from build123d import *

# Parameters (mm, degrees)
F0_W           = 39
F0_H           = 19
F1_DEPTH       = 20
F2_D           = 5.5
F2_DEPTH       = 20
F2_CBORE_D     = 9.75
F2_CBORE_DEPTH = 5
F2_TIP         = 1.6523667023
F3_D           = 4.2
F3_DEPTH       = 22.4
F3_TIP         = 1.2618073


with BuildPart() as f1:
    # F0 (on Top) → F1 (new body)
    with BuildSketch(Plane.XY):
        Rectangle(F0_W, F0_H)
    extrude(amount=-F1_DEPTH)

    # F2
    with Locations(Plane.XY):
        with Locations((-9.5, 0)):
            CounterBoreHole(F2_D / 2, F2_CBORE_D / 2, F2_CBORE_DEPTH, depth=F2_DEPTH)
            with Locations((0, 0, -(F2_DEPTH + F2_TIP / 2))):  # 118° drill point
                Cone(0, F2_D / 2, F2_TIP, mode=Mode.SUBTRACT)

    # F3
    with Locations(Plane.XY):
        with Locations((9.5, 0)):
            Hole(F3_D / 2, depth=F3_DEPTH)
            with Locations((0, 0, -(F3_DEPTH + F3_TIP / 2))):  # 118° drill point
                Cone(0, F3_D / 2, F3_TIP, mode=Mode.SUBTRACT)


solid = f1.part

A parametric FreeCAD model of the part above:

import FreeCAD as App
import Part
import Sketcher
from FreeCAD import Vector

doc = App.newDocument("Part")
body = doc.addObject("PartDesign::Body", "Body")

sketch1 = body.newObject("Sketcher::SketchObject", "Sketch")
sketch1.AttachmentSupport = (doc.getObject("XY_Plane"), [""])
sketch1.MapMode = "FlatFace"
sketch1.addGeometry([
    Part.LineSegment(Vector(-19.5, 9.5, 0), Vector(-19.5, -9.5, 0)),
    Part.LineSegment(Vector(-19.5, -9.5, 0), Vector(19.5, -9.5, 0)),
    Part.LineSegment(Vector(19.5, -9.5, 0), Vector(19.5, 9.5, 0)),
    Part.LineSegment(Vector(19.5, 9.5, 0), Vector(-19.5, 9.5, 0)),
], False)
sketch1.addConstraint([
    Sketcher.Constraint("Coincident", 0, 2, 1, 1),
    Sketcher.Constraint("Coincident", 1, 2, 2, 1),
    Sketcher.Constraint("Coincident", 2, 2, 3, 1),
    Sketcher.Constraint("Coincident", 3, 2, 0, 1),
    Sketcher.Constraint("Vertical", 0),
    Sketcher.Constraint("Horizontal", 1),
    Sketcher.Constraint("Vertical", 2),
    Sketcher.Constraint("Horizontal", 3),
    Sketcher.Constraint("Symmetric", 0, 2, 2, 2, -1, 1),
    Sketcher.Constraint("DistanceX", 1, 1, 1, 2, 39.0),
    Sketcher.Constraint("DistanceY", 0, 2, 0, 1, 19.0),
])
pad1 = body.newObject("PartDesign::Pad", "Pad")
pad1.Profile = sketch1
pad1.Length = 20
pad1.Reversed = True

sketch2 = body.newObject("Sketcher::SketchObject", "Sketch001")
sketch2.AttachmentSupport = (doc.getObject("XY_Plane"), [""])
sketch2.MapMode = "FlatFace"
sketch2.addGeometry(Part.Circle(Vector(-9.5, 0, 0), Vector(0, 0, 1), 2.75), False)
sketch2.addConstraint([
    Sketcher.Constraint("PointOnObject", 0, 3, -1),
    Sketcher.Constraint("Diameter", 0, 5.5),
    Sketcher.Constraint("DistanceX", 0, 3, -1, 1, 9.5),
])
doc.recompute()
hole = body.newObject("PartDesign::Hole", "Hole")
hole.Profile = sketch2
hole.ThreadType = "None"
hole.Diameter = 5.5
hole.DepthType = "Dimension"
hole.Depth = 20
hole.DrillPoint = "Angled"
hole.DrillPointAngle = 118
hole.HoleCutType = "Counterbore"
hole.HoleCutDiameter = 9.75
hole.HoleCutDepth = 5

sketch3 = body.newObject("Sketcher::SketchObject", "Sketch002")
sketch3.AttachmentSupport = (doc.getObject("XY_Plane"), [""])
sketch3.MapMode = "FlatFace"
sketch3.addGeometry(Part.Circle(Vector(9.5, 0, 0), Vector(0, 0, 1), 2.1), False)
sketch3.addConstraint([
    Sketcher.Constraint("PointOnObject", 0, 3, -1),
    Sketcher.Constraint("Diameter", 0, 4.2),
    Sketcher.Constraint("DistanceX", -1, 1, 0, 3, 9.5),
])
doc.recompute()
hole2 = body.newObject("PartDesign::Hole", "Hole001")
hole2.Profile = sketch3
hole2.ThreadType = "None"
hole2.Diameter = 4.2
hole2.DepthType = "Dimension"
hole2.Depth = 22.4
hole2.DrillPoint = "Angled"
hole2.DrillPointAngle = 118

doc.recompute()
